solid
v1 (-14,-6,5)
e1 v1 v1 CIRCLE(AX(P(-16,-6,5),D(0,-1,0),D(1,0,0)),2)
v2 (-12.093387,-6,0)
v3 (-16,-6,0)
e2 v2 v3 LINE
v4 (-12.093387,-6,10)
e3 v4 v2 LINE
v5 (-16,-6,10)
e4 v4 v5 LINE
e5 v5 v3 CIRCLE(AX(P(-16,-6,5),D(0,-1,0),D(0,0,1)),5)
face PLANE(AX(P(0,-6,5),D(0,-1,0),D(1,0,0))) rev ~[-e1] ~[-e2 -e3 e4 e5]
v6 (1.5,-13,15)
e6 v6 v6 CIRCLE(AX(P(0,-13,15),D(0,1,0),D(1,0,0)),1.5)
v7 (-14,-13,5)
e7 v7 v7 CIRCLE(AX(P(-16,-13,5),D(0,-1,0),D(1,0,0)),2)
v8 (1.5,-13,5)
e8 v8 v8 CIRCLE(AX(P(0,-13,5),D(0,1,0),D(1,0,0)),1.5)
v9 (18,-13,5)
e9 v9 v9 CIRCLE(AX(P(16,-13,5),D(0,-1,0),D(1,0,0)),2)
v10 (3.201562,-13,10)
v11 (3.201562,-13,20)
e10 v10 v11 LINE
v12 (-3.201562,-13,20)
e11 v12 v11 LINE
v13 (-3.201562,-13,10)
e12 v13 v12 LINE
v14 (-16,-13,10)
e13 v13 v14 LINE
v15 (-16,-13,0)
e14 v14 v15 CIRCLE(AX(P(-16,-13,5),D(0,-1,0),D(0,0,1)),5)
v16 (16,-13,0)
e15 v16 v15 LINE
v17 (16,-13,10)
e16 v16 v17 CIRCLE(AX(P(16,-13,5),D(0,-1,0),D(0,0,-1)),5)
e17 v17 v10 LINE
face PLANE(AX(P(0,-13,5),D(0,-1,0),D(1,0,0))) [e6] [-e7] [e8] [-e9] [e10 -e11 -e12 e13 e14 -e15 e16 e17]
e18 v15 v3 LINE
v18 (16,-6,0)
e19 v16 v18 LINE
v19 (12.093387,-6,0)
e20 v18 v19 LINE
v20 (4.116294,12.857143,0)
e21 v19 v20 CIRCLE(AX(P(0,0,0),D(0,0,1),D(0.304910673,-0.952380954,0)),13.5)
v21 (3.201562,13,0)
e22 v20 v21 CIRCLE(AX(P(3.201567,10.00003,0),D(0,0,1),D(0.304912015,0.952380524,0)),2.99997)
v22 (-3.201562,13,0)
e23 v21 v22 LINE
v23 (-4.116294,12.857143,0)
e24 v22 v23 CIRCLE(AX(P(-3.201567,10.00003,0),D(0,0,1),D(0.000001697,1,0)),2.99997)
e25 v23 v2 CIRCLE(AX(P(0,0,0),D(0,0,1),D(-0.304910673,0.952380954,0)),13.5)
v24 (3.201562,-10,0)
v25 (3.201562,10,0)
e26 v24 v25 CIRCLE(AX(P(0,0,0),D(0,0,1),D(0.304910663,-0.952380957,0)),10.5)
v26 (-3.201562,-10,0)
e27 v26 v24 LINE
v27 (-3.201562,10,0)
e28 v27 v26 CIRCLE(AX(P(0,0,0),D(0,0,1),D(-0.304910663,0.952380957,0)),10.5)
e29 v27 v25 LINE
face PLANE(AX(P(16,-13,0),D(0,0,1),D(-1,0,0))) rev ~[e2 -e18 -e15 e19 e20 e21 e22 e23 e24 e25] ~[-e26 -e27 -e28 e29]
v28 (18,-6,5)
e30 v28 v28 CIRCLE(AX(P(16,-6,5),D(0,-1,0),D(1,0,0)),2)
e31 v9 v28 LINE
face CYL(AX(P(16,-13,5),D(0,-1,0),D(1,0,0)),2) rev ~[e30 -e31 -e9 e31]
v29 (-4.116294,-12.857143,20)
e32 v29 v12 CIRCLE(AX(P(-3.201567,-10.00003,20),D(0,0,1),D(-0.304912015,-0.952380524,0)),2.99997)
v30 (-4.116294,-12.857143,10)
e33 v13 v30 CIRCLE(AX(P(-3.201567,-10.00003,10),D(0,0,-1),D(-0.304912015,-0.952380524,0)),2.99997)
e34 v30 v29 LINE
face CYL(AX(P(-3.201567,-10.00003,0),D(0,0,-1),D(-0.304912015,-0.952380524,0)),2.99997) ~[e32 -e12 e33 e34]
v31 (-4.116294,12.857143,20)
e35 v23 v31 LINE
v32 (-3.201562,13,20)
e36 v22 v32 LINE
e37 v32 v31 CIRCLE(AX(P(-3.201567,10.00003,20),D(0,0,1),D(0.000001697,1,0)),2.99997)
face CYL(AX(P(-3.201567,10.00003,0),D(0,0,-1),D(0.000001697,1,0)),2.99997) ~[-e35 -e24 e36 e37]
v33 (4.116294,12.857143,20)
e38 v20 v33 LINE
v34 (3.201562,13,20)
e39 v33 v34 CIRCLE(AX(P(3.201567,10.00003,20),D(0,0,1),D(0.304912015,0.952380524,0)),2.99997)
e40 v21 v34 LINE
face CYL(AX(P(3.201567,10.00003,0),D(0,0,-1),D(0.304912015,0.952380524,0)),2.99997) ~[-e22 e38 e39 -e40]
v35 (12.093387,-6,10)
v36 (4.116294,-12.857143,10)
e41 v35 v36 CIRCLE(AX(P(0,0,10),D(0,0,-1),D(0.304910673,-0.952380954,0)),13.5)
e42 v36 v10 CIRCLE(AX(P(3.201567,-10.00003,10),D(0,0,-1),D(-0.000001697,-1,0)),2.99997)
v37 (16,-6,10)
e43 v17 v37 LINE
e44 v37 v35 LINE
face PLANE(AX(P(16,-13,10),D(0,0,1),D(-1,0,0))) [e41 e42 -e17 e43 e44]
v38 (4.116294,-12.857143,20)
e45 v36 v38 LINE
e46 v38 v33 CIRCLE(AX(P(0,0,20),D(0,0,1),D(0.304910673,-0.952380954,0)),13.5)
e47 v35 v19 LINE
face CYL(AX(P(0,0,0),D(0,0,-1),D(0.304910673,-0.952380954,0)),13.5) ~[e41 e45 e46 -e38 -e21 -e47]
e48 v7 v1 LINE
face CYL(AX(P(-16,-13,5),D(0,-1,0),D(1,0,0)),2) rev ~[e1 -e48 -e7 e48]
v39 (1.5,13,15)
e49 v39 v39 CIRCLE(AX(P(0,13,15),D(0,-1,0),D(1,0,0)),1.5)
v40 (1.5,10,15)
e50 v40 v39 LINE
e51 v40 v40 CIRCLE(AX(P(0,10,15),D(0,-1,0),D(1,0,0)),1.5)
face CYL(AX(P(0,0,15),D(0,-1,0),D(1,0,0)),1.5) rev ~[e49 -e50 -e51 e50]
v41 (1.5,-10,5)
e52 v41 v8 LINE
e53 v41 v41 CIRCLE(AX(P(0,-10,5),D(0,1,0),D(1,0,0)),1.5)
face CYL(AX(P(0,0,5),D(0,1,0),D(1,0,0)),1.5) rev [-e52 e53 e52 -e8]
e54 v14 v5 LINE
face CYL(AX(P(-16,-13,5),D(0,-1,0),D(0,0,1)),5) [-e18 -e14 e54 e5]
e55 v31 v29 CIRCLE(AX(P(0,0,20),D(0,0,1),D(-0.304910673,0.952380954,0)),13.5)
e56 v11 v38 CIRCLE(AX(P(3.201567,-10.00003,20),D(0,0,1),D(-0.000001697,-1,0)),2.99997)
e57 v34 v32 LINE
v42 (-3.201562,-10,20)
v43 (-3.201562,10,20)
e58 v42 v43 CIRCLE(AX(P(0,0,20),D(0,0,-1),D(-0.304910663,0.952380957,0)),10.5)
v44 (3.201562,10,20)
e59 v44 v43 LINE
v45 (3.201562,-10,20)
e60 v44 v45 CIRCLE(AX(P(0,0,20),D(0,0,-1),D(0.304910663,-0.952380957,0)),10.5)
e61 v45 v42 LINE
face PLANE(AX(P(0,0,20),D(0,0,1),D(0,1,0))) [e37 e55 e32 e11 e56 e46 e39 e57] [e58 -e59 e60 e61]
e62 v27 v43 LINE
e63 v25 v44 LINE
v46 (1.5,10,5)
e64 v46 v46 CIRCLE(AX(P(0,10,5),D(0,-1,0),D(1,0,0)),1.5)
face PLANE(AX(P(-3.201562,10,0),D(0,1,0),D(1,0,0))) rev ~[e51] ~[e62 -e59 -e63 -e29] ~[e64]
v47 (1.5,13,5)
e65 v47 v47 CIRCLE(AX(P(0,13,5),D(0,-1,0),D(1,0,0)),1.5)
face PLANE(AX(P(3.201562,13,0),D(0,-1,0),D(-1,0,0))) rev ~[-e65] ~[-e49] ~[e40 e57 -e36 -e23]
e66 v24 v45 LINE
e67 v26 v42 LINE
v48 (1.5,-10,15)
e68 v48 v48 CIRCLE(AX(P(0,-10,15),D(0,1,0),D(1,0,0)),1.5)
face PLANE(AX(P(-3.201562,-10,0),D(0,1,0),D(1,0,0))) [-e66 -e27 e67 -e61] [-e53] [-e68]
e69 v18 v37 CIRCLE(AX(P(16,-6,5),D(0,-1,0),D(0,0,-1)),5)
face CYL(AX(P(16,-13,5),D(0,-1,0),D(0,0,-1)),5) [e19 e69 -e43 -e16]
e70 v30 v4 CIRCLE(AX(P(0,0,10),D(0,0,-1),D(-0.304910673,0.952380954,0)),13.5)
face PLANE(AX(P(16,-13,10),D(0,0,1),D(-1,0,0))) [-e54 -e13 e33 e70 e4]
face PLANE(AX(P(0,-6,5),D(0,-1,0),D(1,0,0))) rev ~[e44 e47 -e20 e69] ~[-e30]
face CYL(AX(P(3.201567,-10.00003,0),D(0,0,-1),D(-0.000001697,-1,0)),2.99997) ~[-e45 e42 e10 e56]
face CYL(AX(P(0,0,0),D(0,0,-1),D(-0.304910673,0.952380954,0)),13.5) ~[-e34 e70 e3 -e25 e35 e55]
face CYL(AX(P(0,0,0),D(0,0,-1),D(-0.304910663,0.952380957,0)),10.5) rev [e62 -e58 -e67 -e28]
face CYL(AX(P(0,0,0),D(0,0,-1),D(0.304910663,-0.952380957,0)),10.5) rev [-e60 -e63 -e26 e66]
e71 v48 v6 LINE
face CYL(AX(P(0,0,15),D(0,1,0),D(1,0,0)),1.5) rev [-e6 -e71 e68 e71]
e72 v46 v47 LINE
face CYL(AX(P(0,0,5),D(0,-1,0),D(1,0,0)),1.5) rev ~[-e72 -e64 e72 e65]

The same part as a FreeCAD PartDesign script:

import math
import FreeCAD as App
import Part
import Sketcher

V = App.Vector

doc = App.newDocument("Part")
body = doc.addObject("PartDesign::Body", "Body")

# Sketch on XY plane
sketch1 = body.newObject("Sketcher::SketchObject", "Sketch")
sketch1.AttachmentSupport = (doc.getObject("XY_Plane"), [""])
sketch1.MapMode = "FlatFace"
sketch1.addGeometry([
    Part.ArcOfCircle(Part.Circle(V(0, 0, 0), V(0, 0, 1), 13.5), math.radians(107.75279), math.radians(252.24721)),  # 0
    Part.ArcOfCircle(Part.Circle(V(-3.201567, -10.00003, 0), V(0, 0, 1), 2.99997), math.radians(-107.752871), math.radians(-89.999903)),  # 1
    Part.LineSegment(V(-3.201562, -13, 0), V(3.201562, -13, 0)),  # 2
    Part.ArcOfCircle(Part.Circle(V(3.201567, -10.00003, 0), V(0, 0, 1), 2.99997), math.radians(-90.000097), math.radians(-72.247129)),  # 3
    Part.ArcOfCircle(Part.Circle(V(0, 0, 0), V(0, 0, 1), 13.5), math.radians(-72.24721), math.radians(72.24721)),  # 4
    Part.ArcOfCircle(Part.Circle(V(3.201567, 10.00003, 0), V(0, 0, 1), 2.99997), math.radians(72.247129), math.radians(90.000097)),  # 5
    Part.LineSegment(V(3.201562, 13, 0), V(-3.201562, 13, 0)),  # 6
    Part.ArcOfCircle(Part.Circle(V(-3.201567, 10.00003, 0), V(0, 0, 1), 2.99997), math.radians(89.999903), math.radians(107.752871)),  # 7
], False)
sketch1.addConstraint([
    Sketcher.Constraint("Tangent", 0, 2, 1, 1),
    Sketcher.Constraint("Tangent", 1, 2, 2, 1),
    Sketcher.Constraint("Tangent", 2, 2, 3, 1),
    Sketcher.Constraint("Tangent", 3, 2, 4, 1),
    Sketcher.Constraint("Tangent", 4, 2, 5, 1),
    Sketcher.Constraint("Tangent", 5, 2, 6, 1),
    Sketcher.Constraint("Tangent", 6, 2, 7, 1),
    Sketcher.Constraint("Tangent", 7, 2, 0, 1),
    Sketcher.Constraint("Horizontal", 2),
    Sketcher.Constraint("Horizontal", 6),
    Sketcher.Constraint("Coincident", 0, 3, -1, 1),
    Sketcher.Constraint("Coincident", 4, 3, -1, 1),
    Sketcher.Constraint("Equal", 1, 3),
    Sketcher.Constraint("Equal", 0, 4),
    Sketcher.Constraint("Equal", 3, 5),
    Sketcher.Constraint("Equal", 5, 7),
    Sketcher.Constraint("Vertical", 3, 3, 5, 3),
    Sketcher.Constraint("Radius", 0, 13.5),
    Sketcher.Constraint("DistanceY", 1, 2, -1, 1, 13.0),
    Sketcher.Constraint("Radius", 1, 2.99997),
])
pad1 = body.newObject("PartDesign::Pad", "Pad")
pad1.Profile = sketch1
pad1.Length = 20

# Sketch on XZ plane
sketch2 = body.newObject("Sketcher::SketchObject", "Sketch001")
sketch2.AttachmentSupport = (doc.getObject("XZ_Plane"), [""])
sketch2.MapMode = "FlatFace"
sketch2.AttachmentOffset = App.Placement(V(0, 0, 13), App.Rotation())
sketch2.addGeometry([
    Part.ArcOfCircle(Part.Circle(V(16, 5, 0), V(0, 0, 1), 5), math.radians(-90), math.radians(90)),  # 0
    Part.LineSegment(V(16, 10, 0), V(-16, 10, 0)),  # 1
    Part.ArcOfCircle(Part.Circle(V(-16, 5, 0), V(0, 0, 1), 5), math.radians(90), math.radians(270)),  # 2
    Part.LineSegment(V(-16, 0, 0), V(16, 0, 0)),  # 3
    Part.Circle(V(-16, 5, 0), V(0, 0, 1), 2),  # 4
    Part.Circle(V(16, 5, 0), V(0, 0, 1), 2),  # 5
], False)
sketch2.addConstraint([
    Sketcher.Constraint("Tangent", 0, 2, 1, 1),
    Sketcher.Constraint("Tangent", 1, 2, 2, 1),
    Sketcher.Constraint("Tangent", 2, 2, 3, 1),
    Sketcher.Constraint("Tangent", 3, 2, 0, 1),
    Sketcher.Constraint("Horizontal", 1),
    Sketcher.Constraint("Horizontal", 3),
    Sketcher.Constraint("Coincident", 4, 3, 2, 3),
    Sketcher.Constraint("Coincident", 5, 3, 0, 3),
    Sketcher.Constraint("Equal", 4, 5),
    Sketcher.Constraint("Symmetric", 2, 2, 3, 2, -1, 1),
    Sketcher.Constraint("Diameter", 4, 4.0),
    Sketcher.Constraint("Radius", 0, 5.0),
    Sketcher.Constraint("DistanceX", 1, 2, 1, 1, 32.0),
])
pad2 = body.newObject("PartDesign::Pad", "Pad001")
pad2.Profile = sketch2
pad2.Length = 7
pad2.Reversed = True

# Sketch on XY plane
sketch3 = body.newObject("Sketcher::SketchObject", "Sketch002")
sketch3.AttachmentSupport = (doc.getObject("XY_Plane"), [""])
sketch3.MapMode = "FlatFace"
sketch3.addGeometry([
    Part.ArcOfCircle(Part.Circle(V(0, 0, 0), V(0, 0, 1), 10.5), math.radians(107.752789), math.radians(252.247211)),
    Part.LineSegment(V(-3.201562, -10, 0), V(3.201562, -10, 0)),
    Part.ArcOfCircle(Part.Circle(V(0, 0, 0), V(0, 0, 1), 10.5), math.radians(-72.247211), math.radians(72.247211)),
    Part.LineSegment(V(3.201562, 10, 0), V(-3.201562, 10, 0)),
], False)
sketch3.addConstraint([
    Sketcher.Constraint("Coincident", 0, 2, 1, 1),
    Sketcher.Constraint("Coincident", 1, 2, 2, 1),
    Sketcher.Constraint("Coincident", 2, 2, 3, 1),
    Sketcher.Constraint("Coincident", 3, 2, 0, 1),
    Sketcher.Constraint("Horizontal", 1),
    Sketcher.Constraint("Horizontal", 3),
    Sketcher.Constraint("Coincident", 0, 3, -1, 1),
    Sketcher.Constraint("Coincident", 2, 3, -1, 1),
    Sketcher.Constraint("Equal", 0, 2),
    Sketcher.Constraint("Vertical", 1, 2, 2, 2),
    Sketcher.Constraint("Radius", 0, 10.5),
    Sketcher.Constraint("DistanceY", 0, 2, -1, 1, 10.0),
])
pocket1 = body.newObject("PartDesign::Pocket", "Pocket")
pocket1.Profile = sketch3
pocket1.Type = "ThroughAll"
pocket1.Reversed = True

# Sketch on XZ plane
sketch4 = body.newObject("Sketcher::SketchObject", "Sketch003")
sketch4.AttachmentSupport = (doc.getObject("XZ_Plane"), [""])
sketch4.MapMode = "FlatFace"
sketch4.addGeometry([
    Part.Circle(V(0, 5, 0), V(0, 0, 1), 1.5),
    Part.Circle(V(0, 15, 0), V(0, 0, 1), 1.5),
], False)
sketch4.addConstraint([
    Sketcher.Constraint("Equal", 0, 1),
    Sketcher.Constraint("PointOnObject", 0, 3, -2),
    Sketcher.Constraint("PointOnObject", 1, 3, -2),
    Sketcher.Constraint("Diameter", 0, 3.0),
    Sketcher.Constraint("DistanceY", -1, 1, 0, 3, 5.0),
    Sketcher.Constraint("DistanceY", -1, 1, 1, 3, 15.0),
])
pocket2 = body.newObject("PartDesign::Pocket", "Pocket001")
pocket2.Profile = sketch4
pocket2.Type = "ThroughAll"
pocket2.Midplane = True

doc.recompute()
